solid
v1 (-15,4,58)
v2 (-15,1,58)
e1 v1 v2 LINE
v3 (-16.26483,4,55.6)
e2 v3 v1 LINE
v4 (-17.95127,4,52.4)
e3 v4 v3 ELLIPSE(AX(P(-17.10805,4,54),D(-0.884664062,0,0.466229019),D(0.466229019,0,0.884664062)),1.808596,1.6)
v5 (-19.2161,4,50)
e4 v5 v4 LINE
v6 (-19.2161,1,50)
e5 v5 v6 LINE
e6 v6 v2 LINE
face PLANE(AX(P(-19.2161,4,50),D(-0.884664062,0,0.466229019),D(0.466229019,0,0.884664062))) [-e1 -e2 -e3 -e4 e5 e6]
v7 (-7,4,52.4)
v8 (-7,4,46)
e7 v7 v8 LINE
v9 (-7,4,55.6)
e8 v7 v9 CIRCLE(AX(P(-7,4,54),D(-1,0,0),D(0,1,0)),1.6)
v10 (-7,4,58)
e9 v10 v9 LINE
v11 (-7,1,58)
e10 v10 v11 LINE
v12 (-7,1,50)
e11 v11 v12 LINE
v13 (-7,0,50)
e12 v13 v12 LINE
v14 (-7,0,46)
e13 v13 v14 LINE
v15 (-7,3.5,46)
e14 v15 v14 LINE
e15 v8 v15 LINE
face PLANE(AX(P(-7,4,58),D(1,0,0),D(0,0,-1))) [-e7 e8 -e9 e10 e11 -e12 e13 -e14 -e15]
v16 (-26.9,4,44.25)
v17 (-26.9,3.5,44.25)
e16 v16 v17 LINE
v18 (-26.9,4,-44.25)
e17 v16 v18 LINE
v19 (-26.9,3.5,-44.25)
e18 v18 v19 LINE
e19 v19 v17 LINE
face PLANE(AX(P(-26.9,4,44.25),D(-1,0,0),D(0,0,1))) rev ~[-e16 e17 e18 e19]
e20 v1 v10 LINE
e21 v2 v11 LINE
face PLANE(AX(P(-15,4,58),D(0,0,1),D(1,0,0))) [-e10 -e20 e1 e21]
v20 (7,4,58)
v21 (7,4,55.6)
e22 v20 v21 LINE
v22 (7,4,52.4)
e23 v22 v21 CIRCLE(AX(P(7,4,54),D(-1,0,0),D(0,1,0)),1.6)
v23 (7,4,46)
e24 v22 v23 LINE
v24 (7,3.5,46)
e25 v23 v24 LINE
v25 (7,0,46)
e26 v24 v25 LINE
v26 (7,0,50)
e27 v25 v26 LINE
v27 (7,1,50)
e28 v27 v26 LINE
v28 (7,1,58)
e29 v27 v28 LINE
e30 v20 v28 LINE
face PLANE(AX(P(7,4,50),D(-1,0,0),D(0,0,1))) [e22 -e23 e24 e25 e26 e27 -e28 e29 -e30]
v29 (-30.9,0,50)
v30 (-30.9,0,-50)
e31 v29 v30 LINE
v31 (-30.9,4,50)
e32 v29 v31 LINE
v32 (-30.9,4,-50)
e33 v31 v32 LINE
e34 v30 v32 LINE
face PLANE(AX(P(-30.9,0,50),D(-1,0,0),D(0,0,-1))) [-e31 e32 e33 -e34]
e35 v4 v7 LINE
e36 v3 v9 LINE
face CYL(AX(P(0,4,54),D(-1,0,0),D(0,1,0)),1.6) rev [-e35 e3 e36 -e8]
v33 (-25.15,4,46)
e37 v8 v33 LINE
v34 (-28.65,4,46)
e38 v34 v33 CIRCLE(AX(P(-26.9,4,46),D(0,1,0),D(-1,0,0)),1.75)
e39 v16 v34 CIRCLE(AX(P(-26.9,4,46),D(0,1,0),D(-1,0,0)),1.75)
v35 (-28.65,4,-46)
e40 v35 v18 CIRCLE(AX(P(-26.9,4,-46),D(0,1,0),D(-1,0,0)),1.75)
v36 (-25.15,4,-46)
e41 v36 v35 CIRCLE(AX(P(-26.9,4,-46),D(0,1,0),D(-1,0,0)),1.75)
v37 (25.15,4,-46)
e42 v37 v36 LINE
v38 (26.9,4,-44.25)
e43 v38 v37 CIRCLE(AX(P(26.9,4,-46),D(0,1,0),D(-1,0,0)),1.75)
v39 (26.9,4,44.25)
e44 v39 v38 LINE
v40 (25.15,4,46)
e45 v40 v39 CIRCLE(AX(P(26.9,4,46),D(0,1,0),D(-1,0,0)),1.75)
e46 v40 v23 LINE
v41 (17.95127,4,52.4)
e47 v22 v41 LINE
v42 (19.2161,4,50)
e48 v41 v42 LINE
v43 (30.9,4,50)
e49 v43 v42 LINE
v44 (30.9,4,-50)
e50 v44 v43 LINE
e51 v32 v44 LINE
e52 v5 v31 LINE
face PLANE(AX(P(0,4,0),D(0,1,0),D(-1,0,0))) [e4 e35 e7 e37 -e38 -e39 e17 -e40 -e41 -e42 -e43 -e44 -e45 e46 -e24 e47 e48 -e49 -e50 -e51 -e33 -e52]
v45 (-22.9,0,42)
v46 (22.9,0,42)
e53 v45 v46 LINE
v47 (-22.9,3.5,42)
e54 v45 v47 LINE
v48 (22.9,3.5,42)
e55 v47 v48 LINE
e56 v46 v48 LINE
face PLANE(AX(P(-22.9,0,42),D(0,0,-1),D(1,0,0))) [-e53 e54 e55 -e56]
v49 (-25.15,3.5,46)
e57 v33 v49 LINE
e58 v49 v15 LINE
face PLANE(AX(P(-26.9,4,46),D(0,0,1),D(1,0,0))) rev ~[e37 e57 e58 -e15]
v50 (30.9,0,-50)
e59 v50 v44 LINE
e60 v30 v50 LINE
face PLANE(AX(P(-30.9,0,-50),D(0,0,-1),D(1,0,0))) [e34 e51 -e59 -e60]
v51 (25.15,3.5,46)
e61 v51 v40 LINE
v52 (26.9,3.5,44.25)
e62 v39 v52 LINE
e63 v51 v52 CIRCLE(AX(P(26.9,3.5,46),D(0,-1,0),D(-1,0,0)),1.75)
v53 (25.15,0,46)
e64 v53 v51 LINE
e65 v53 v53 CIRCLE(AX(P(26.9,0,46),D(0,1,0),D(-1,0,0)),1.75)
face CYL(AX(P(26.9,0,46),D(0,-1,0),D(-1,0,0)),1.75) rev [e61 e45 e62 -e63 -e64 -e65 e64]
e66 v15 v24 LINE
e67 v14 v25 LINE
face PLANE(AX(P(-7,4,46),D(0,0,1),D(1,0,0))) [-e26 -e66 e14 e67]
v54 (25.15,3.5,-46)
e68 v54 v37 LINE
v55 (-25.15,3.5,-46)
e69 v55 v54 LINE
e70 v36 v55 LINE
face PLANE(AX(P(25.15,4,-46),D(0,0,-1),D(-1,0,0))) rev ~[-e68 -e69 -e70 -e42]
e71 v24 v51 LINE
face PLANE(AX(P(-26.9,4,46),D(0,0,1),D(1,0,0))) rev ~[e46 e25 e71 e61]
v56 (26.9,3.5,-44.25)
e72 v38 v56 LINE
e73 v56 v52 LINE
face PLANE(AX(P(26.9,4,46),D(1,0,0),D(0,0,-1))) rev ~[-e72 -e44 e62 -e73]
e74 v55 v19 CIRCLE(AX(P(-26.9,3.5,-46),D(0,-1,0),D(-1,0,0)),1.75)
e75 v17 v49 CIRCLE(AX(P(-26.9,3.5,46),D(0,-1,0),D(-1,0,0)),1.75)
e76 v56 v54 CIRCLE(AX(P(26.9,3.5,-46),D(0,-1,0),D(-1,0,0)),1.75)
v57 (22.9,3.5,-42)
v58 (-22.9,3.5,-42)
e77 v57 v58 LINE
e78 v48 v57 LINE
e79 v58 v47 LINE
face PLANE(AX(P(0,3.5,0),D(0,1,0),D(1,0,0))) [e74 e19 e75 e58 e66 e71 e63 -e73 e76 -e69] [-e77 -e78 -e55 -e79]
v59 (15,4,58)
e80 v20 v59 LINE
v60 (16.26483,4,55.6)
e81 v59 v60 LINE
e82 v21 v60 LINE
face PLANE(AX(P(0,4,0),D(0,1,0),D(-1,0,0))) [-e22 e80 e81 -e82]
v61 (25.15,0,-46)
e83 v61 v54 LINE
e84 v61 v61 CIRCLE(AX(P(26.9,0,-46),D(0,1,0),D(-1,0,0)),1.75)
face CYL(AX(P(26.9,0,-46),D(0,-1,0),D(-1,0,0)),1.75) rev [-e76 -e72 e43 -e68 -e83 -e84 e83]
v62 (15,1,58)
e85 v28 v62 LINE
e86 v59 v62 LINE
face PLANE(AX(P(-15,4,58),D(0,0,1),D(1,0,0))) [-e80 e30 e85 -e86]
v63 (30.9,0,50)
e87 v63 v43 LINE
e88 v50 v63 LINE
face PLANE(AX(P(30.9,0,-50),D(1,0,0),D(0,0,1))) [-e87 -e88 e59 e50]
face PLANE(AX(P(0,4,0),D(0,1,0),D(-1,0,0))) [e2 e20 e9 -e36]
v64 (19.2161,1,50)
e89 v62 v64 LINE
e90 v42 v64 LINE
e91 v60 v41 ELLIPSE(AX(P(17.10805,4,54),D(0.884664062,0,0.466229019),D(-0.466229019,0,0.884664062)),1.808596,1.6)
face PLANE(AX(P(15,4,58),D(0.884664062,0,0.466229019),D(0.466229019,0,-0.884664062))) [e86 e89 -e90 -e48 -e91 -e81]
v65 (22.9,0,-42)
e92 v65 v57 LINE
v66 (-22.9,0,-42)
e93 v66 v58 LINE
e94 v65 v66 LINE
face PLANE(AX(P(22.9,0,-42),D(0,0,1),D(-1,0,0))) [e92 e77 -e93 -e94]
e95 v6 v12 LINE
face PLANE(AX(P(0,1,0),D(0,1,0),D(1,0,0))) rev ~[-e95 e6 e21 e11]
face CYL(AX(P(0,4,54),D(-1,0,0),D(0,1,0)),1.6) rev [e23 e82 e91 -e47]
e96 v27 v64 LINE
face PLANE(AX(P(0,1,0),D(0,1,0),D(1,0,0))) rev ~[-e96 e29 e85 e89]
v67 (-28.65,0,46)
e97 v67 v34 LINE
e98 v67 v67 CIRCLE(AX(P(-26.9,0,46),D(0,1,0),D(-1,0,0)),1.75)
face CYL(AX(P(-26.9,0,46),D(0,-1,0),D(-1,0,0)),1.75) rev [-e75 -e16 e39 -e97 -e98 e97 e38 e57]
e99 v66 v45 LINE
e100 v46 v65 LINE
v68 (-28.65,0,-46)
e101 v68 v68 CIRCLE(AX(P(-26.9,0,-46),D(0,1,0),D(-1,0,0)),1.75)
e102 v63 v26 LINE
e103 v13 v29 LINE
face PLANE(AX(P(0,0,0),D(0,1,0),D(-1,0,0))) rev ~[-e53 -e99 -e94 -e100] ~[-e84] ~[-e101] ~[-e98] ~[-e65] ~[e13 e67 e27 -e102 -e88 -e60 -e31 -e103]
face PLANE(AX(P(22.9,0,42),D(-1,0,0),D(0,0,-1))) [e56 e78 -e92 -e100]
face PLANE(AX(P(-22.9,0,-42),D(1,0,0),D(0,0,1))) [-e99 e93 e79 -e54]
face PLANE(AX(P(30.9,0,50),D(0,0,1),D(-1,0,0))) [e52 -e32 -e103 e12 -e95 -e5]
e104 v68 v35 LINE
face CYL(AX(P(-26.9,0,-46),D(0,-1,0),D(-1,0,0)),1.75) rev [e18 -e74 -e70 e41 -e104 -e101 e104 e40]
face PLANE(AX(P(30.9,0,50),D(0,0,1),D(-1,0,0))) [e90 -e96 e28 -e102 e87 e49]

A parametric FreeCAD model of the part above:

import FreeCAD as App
import Part
import Sketcher
from FreeCAD import Vector
Q = App.Units.Quantity


def add_polygon(sketch, points):
    """Adds a closed chain of lines whose ends are joined by coincident constraints."""
    first, n = sketch.GeometryCount, len(points)
    for a, b in zip(points, points[1:] + points[:1]):
        sketch.addGeometry(Part.LineSegment(App.Vector(*a, 0), App.Vector(*b, 0)), False)
    for i in range(n):
        sketch.addConstraint(Sketcher.Constraint("Coincident", first + i, 2, first + (i + 1) % n, 1))

doc = App.newDocument("Part")
body = doc.addObject("PartDesign::Body", "Body")

sketch1 = body.newObject("Sketcher::SketchObject", "Sketch")
sketch1.AttachmentSupport = (doc.getObject("XZ_Plane"), [""])
sketch1.MapMode = "FlatFace"
add_polygon(sketch1, [(-30.9, -50), (-30.9, 50), (30.9, 50), (30.9, -50)])
sketch1.addGeometry(Part.Circle(Vector(26.9, -46, 0), Vector(0, 0, 1), 1.8), False)
sketch1.addGeometry(Part.Circle(Vector(-26.9, -46, 0), Vector(0, 0, 1), 1.8), False)
sketch1.addGeometry(Part.Circle(Vector(26.9, 46, 0), Vector(0, 0, 1), 1.8), False)
add_polygon(sketch1, [(22.9, 42), (-22.9, 42), (-22.9, -42), (22.9, -42)])
sketch1.addGeometry(Part.Circle(Vector(-26.9, 46, 0), Vector(0, 0, 1), 1.8), False)
sketch1.addConstraint(Sketcher.Constraint("Vertical", 0))
sketch1.addConstraint(Sketcher.Constraint("Horizontal", 1))
sketch1.addConstraint(Sketcher.Constraint("Vertical", 2))
sketch1.addConstraint(Sketcher.Constraint("Horizontal", 3))
sketch1.addConstraint(Sketcher.Constraint("Horizontal", 7))
sketch1.addConstraint(Sketcher.Constraint("Vertical", 8))
sketch1.addConstraint(Sketcher.Constraint("Horizontal", 9))
sketch1.addConstraint(Sketcher.Constraint("Vertical", 10))
sketch1.addConstraint(Sketcher.Constraint("Equal", 4, 5))
sketch1.addConstraint(Sketcher.Constraint("Equal", 5, 6))
sketch1.addConstraint(Sketcher.Constraint("Equal", 6, 11))
sketch1.addConstraint(Sketcher.Constraint("Symmetric", 5, 3, 6, 3, -1, 1))
sketch1.addConstraint(Sketcher.Constraint("Symmetric", 4, 3, 11, 3, -1, 1))
sketch1.addConstraint(Sketcher.Constraint("Symmetric", 0, 2, 2, 2, -1, 1))
sketch1.addConstraint(Sketcher.Constraint("Symmetric", 7, 2, 9, 2, -1, 1))
sketch1.addConstraint(Sketcher.Constraint("Symmetric", 4, 3, 5, 3, -2))
sketch1.addConstraint(Sketcher.Constraint("Diameter", 4, Q("3.5 mm")))
sketch1.addConstraint(Sketcher.Constraint("DistanceY", 0, 1, 0, 2, Q("100 mm")))
sketch1.addConstraint(Sketcher.Constraint("DistanceX", 1, 1, 1, 2, Q("61.8 mm")))
sketch1.addConstraint(Sketcher.Constraint("DistanceY", 4, 3, 6, 3, Q("92 mm")))
sketch1.addConstraint(Sketcher.Constraint("DistanceX", 0, 2, 11, 3, Q("4 mm")))
sketch1.addConstraint(Sketcher.Constraint("DistanceX", 11, 3, 7, 2, Q("4 mm")))
sketch1.addConstraint(Sketcher.Constraint("DistanceY", 7, 2, 11, 3, Q("4 mm")))
pad1 = body.newObject("PartDesign::Pad", "Pad")
pad1.Profile = sketch1
pad1.Length = 4
pad1.Reversed = True

sketch2 = body.newObject("Sketcher::SketchObject", "Sketch001")
sketch2.AttachmentSupport = (doc.getObject("XZ_Plane"), [""])
sketch2.MapMode = "FlatFace"
sketch2.AttachmentOffset = App.Placement(Vector(0, 0, -4), App.Rotation())
add_polygon(sketch2, [(19, 50), (-19, 50), (-15, 58), (15, 58)])
sketch2.addConstraint(Sketcher.Constraint("Horizontal", 0))
sketch2.addConstraint(Sketcher.Constraint("Horizontal", 2))
sketch2.addConstraint(Sketcher.Constraint("Equal", 1, 3))
sketch2.addConstraint(Sketcher.Constraint("DistanceX", 2, 1, 2, 2, Q("30 mm")))
sketch2.addConstraint(Sketcher.Constraint("DistanceY", 0, 2, 1, 2, Q("8 mm")))
sketch2.addConstraint(Sketcher.Constraint("DistanceY", -1, 1, 0, 2, Q("50 mm")))
sketch2.addConstraint(Sketcher.Constraint("DistanceX", 1, 2, -1, 1, Q("15 mm")))
sketch2.addConstraint(Sketcher.Constraint("Angle", 1, Q("62.2102 deg")))
pad2 = body.newObject("PartDesign::Pad", "Pad001")
pad2.Profile = sketch2
pad2.Length = 3

sketch3 = body.newObject("Sketcher::SketchObject", "Sketch002")
sketch3.AttachmentSupport = (doc.getObject("YZ_Plane"), [""])
sketch3.MapMode = "FlatFace"
sketch3.addGeometry(Part.Circle(Vector(4, 54, 0), Vector(0, 0, 1), 1.6), False)
sketch3.addConstraint(Sketcher.Constraint("Diameter", 0, Q("3.2 mm")))
sketch3.addConstraint(Sketcher.Constraint("DistanceX", -1, 1, 0, 3, Q("4 mm")))
sketch3.addConstraint(Sketcher.Constraint("DistanceY", -1, 1, 0, 3, Q("54 mm")))
pocket1 = body.newObject("PartDesign::Pocket", "Pocket")
pocket1.Profile = sketch3
pocket1.Length = 40
pocket1.Midplane = True

sketch4 = body.newObject("Sketcher::SketchObject", "Sketch003")
sketch4.AttachmentSupport = (doc.getObject("XZ_Plane"), [""])
sketch4.MapMode = "FlatFace"
sketch4.AttachmentOffset = App.Placement(Vector(0, 0, -4), App.Rotation())
add_polygon(sketch4, [(-7, 58), (7, 58), (7, 46), (-7, 46)])
sketch4.addConstraint(Sketcher.Constraint("Horizontal", 0))
sketch4.addConstraint(Sketcher.Constraint("Vertical", 1))
sketch4.addConstraint(Sketcher.Constraint("Horizontal", 2))
sketch4.addConstraint(Sketcher.Constraint("Vertical", 3))
sketch4.addConstraint(Sketcher.Constraint("DistanceX", 0, 1, 0, 2, Q("14 mm")))
sketch4.addConstraint(Sketcher.Constraint("DistanceY", 1, 2, 1, 1, Q("12 mm")))
sketch4.addConstraint(Sketcher.Constraint("DistanceX", -1, 1, 0, 2, Q("7 mm")))
sketch4.addConstraint(Sketcher.Constraint("DistanceY", -1, 1, 0, 2, Q("58 mm")))
pocket2 = body.newObject("PartDesign::Pocket", "Pocket001")
pocket2.Profile = sketch4
pocket2.Length = 40
pocket2.Reversed = True

sketch5 = body.newObject("Sketcher::SketchObject", "Sketch004")
sketch5.AttachmentSupport = (doc.getObject("XZ_Plane"), [""])
sketch5.MapMode = "FlatFace"
sketch5.AttachmentOffset = App.Placement(Vector(0, 0, -4), App.Rotation())
add_polygon(sketch5, [(-27, 46), (27, 46), (27, -46), (-27, -46)])
sketch5.addConstraint(Sketcher.Constraint("Horizontal", 0))
sketch5.addConstraint(Sketcher.Constraint("Vertical", 1))
sketch5.addConstraint(Sketcher.Constraint("Horizontal", 2))
sketch5.addConstraint(Sketcher.Constraint("Vertical", 3))
sketch5.addConstraint(Sketcher.Constraint("Symmetric", 0, 2, 2, 2, -1, 1))
sketch5.addConstraint(Sketcher.Constraint("DistanceY", 1, 2, 1, 1, Q("92 mm")))
sketch5.addConstraint(Sketcher.Constraint("DistanceX", 0, 1, 0, 2, Q("53.8 mm")))
pocket3 = body.newObject("PartDesign::Pocket", "Pocket002")
pocket3.Profile = sketch5
pocket3.Length = 0.5
pocket3.Reversed = True

doc.recompute()
